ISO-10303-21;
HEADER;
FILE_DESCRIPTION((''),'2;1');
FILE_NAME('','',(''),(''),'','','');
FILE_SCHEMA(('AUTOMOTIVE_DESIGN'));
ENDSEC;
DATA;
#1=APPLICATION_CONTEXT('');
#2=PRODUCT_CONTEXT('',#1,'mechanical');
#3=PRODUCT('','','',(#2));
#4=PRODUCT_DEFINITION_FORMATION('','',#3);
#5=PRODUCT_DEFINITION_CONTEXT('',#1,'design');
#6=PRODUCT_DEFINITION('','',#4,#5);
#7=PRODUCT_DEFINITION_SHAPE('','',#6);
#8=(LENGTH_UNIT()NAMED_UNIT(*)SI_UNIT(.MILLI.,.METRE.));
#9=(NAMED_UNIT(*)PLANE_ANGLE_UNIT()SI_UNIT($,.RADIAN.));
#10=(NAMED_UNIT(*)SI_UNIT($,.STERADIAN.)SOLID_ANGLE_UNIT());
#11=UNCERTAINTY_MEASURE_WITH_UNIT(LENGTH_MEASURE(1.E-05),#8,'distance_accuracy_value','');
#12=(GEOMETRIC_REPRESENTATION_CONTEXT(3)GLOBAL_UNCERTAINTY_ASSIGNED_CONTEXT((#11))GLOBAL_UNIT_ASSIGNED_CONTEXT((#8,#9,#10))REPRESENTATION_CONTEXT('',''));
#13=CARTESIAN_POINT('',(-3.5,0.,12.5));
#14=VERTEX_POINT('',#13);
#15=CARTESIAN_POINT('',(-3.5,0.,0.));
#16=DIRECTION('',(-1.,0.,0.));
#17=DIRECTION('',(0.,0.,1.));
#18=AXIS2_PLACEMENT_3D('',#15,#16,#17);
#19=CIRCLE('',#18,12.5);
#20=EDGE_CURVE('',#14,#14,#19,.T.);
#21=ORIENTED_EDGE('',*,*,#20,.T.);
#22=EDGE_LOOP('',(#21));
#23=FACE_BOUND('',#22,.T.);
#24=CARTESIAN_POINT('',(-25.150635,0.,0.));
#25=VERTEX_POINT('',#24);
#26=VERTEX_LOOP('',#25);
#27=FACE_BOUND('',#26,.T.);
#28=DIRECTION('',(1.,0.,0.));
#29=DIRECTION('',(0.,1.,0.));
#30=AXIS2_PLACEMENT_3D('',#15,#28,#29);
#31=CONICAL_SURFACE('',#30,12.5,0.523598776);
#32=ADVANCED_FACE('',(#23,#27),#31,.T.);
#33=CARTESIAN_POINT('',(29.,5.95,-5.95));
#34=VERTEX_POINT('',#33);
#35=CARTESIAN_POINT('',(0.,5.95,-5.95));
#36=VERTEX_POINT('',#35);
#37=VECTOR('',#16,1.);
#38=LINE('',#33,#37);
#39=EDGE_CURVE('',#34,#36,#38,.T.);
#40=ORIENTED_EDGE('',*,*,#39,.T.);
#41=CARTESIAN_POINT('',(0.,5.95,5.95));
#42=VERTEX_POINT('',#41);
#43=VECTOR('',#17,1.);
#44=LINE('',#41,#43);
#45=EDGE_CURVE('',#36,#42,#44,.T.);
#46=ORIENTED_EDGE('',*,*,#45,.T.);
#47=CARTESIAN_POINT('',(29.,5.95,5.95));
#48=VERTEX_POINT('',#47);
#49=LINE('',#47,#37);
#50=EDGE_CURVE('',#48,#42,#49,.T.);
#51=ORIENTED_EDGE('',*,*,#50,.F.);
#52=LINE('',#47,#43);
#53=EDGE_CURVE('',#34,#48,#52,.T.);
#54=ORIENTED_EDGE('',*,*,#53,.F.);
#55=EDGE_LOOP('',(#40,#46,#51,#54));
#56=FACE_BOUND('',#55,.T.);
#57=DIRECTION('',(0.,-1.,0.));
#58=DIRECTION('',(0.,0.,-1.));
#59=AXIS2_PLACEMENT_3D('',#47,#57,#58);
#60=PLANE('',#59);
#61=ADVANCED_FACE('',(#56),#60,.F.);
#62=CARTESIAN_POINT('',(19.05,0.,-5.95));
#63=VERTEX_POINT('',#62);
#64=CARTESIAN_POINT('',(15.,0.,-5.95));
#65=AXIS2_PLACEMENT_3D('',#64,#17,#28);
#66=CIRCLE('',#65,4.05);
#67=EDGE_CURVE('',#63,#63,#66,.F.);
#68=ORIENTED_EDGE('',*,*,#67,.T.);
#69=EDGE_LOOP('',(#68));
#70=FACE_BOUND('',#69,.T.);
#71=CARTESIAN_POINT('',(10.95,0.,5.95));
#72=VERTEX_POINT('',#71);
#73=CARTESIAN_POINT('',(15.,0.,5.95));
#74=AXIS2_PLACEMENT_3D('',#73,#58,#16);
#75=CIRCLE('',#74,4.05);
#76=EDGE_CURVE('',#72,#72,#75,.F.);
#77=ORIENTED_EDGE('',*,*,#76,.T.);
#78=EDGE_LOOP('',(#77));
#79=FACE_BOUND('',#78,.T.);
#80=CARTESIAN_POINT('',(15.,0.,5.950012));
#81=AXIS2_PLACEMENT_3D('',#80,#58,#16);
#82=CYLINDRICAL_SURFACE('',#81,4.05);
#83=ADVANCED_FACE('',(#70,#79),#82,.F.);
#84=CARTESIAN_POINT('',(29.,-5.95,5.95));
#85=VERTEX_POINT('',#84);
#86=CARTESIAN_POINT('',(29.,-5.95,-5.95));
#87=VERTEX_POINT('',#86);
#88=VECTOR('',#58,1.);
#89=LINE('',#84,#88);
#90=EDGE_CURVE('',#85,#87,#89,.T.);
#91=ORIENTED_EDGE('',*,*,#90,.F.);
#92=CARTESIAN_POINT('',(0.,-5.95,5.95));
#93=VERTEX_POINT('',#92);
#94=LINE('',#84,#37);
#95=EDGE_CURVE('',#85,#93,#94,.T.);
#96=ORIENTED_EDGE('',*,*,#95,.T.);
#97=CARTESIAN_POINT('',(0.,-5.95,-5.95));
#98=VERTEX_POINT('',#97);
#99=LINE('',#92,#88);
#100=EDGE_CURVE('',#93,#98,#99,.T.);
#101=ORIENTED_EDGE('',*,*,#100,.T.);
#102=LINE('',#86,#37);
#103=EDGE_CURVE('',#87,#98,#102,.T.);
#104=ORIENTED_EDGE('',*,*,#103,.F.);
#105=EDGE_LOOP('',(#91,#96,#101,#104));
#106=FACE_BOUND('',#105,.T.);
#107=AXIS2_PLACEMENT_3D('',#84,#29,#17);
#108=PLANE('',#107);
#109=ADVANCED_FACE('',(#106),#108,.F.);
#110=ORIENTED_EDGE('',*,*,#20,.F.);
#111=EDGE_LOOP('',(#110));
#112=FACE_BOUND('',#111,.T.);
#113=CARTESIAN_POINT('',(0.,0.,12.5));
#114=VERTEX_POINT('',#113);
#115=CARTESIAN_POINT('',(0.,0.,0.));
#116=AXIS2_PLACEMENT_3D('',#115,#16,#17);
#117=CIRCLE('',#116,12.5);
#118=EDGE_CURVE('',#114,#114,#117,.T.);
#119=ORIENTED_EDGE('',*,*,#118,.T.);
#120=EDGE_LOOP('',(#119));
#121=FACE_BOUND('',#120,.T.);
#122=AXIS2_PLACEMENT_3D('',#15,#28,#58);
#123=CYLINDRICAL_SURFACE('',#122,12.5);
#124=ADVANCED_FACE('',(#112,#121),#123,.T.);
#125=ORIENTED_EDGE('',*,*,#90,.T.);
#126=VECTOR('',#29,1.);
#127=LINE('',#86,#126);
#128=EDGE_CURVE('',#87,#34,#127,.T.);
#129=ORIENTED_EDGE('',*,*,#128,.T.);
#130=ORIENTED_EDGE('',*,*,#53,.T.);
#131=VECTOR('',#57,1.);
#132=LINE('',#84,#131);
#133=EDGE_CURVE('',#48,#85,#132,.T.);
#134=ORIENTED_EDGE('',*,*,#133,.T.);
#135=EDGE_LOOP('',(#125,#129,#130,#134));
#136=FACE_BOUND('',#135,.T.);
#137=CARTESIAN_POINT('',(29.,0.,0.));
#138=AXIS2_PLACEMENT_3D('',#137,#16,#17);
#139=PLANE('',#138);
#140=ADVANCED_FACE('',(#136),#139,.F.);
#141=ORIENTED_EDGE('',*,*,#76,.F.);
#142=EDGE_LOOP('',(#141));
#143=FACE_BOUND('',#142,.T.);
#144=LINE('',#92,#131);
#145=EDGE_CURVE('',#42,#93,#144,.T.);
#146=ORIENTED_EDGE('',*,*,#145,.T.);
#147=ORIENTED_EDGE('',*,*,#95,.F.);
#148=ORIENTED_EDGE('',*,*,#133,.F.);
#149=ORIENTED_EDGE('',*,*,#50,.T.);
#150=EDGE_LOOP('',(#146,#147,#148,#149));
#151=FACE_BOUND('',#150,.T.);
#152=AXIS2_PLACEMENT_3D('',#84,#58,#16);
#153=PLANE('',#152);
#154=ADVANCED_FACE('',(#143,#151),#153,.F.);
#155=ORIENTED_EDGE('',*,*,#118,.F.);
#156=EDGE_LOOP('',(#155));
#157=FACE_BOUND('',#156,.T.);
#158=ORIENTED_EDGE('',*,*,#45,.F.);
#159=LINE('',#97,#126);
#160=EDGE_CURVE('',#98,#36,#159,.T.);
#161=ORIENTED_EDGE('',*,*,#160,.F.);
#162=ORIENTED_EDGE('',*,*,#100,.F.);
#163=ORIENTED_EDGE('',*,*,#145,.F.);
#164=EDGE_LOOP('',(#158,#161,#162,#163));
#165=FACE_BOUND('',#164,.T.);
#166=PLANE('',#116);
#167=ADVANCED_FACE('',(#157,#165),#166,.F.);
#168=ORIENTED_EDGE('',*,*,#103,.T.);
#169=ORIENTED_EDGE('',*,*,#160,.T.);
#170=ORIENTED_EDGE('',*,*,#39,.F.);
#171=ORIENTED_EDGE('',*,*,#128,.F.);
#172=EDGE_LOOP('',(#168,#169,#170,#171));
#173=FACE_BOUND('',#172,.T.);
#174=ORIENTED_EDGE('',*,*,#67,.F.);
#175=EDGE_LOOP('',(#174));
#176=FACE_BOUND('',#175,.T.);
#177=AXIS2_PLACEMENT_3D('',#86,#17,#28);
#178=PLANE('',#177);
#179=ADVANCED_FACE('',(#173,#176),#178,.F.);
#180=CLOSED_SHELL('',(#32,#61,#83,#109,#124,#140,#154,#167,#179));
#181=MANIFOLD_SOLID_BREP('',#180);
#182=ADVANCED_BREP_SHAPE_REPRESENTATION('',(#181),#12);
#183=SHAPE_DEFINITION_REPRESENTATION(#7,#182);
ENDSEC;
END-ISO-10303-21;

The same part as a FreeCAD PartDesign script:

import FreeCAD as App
import Part
import Sketcher

V = App.Vector
Q = App.Units.Quantity


def add_polygon(sketch, points):
    """Adds a closed chain of lines whose ends are joined by coincident constraints."""
    first, n = sketch.GeometryCount, len(points)
    for a, b in zip(points, points[1:] + points[:1]):
        sketch.addGeometry(Part.LineSegment(App.Vector(*a, 0), App.Vector(*b, 0)), False)
    for i in range(n):
        sketch.addConstraint(Sketcher.Constraint("Coincident", first + i, 2, first + (i + 1) % n, 1))

doc = App.newDocument("Part")
body = doc.addObject("PartDesign::Body", "Body")

# Sketch on YZ plane
sketch1 = doc.addObject("Sketcher::SketchObject", "Sketch")
body.addObject(sketch1)
sketch1.AttachmentSupport = (doc.YZ_Plane, [""])
sketch1.MapMode = "FlatFace"
add_polygon(sketch1, [(5.95, 5.95), (-5.95, 5.95), (-5.95, -5.95), (5.95, -5.95)])  # lines 0-3
sketch1.addConstraint([
    Sketcher.Constraint("Horizontal", 0),
    Sketcher.Constraint("Vertical", 1),
    Sketcher.Constraint("Horizontal", 2),
    Sketcher.Constraint("Vertical", 3),
    Sketcher.Constraint("Symmetric", 0, 2, 2, 2, -1, 1),
    Sketcher.Constraint("Equal", 2, 1),
    Sketcher.Constraint("DistanceX", 0, 2, 0, 1, Q("11.9 mm")),
])
pad1 = doc.addObject("PartDesign::Pad", "Pad")
body.addObject(pad1)
pad1.Profile = sketch1
pad1.Length = 29

# Sketch on XY plane
sketch2 = doc.addObject("Sketcher::SketchObject", "Sketch001")
body.addObject(sketch2)
sketch2.AttachmentSupport = (doc.XY_Plane, [""])
sketch2.MapMode = "FlatFace"
sketch2.AttachmentOffset = App.Placement(V(0, 0, 5.95), App.Rotation())
sketch2.addGeometry(Part.Circle(V(15, 0, 0), V(0, 0, 1), 4.05), False)
sketch2.addConstraint([
    Sketcher.Constraint("PointOnObject", 0, 3, -1),
    Sketcher.Constraint("Diameter", 0, Q("8.1 mm")),
    Sketcher.Constraint("DistanceX", -1, 1, 0, 3, Q("15 mm")),
])
pocket1 = doc.addObject("PartDesign::Pocket", "Pocket")
body.addObject(pocket1)
pocket1.Profile = sketch2
pocket1.Type = "UpToFirst"

# Sketch on XY plane
sketch3 = doc.addObject("Sketcher::SketchObject", "Sketch002")
body.addObject(sketch3)
sketch3.AttachmentSupport = (doc.XY_Plane, [""])
sketch3.MapMode = "FlatFace"
sketch3.AttachmentOffset = App.Placement(V(0, 0, 5.95), App.Rotation())
sketch3.addGeometry(Part.Circle(V(15, 0, 0), V(0, 0, 1), 4.05), False)
sketch3.addConstraint([
    Sketcher.Constraint("PointOnObject", 0, 3, -1),
    Sketcher.Constraint("Diameter", 0, Q("8.1 mm")),
    Sketcher.Constraint("DistanceX", -1, 1, 0, 3, Q("15 mm")),
])
pocket2 = doc.addObject("PartDesign::Pocket", "Pocket001")
body.addObject(pocket2)
pocket2.Profile = sketch3
pocket2.Length = 1
pocket2.Reversed = True

# Sketch on YZ plane
sketch4 = doc.addObject("Sketcher::SketchObject", "Sketch003")
body.addObject(sketch4)
sketch4.AttachmentSupport = (doc.YZ_Plane, [""])
sketch4.MapMode = "FlatFace"
sketch4.addGeometry(Part.Circle(V(0, 0, 0), V(0, 0, 1), 12.5), False)
sketch4.addConstraint([
    Sketcher.Constraint("Coincident", 0, 3, -1, 1),
    Sketcher.Constraint("Diameter", 0, Q("25 mm")),
])
pad2 = doc.addObject("PartDesign::Pad", "Pad001")
body.addObject(pad2)
pad2.Profile = sketch4
pad2.Length = 3.5
pad2.Reversed = True

# Sketch on XY plane
sketch5 = doc.addObject("Sketcher::SketchObject", "Sketch004")
body.addObject(sketch5)
sketch5.AttachmentSupport = (doc.XY_Plane, [""])
sketch5.MapMode = "FlatFace"
add_polygon(sketch5, [(-3.5, 0), (-3.5, 12.5), (-25.150635, 0)])  # lines 0-2
sketch5.addConstraint([
    Sketcher.Constraint("Vertical", 0),
    Sketcher.Constraint("Horizontal", 2),
    Sketcher.Constraint("PointOnObject", 1, 2, -1),
    Sketcher.Constraint("Angle", 1, Q("-150 deg")),
    Sketcher.Constraint("Distance", 1, Q("25 mm")),
    Sketcher.Constraint("DistanceX", 0, 2, -1, 1, Q("3.5 mm")),
])
revolution = doc.addObject("PartDesign::Revolution", "Revolution")
body.addObject(revolution)
revolution.Profile = sketch5
revolution.ReferenceAxis = (sketch5, ["H_Axis"])
revolution.Angle = 360

doc.recompute()
